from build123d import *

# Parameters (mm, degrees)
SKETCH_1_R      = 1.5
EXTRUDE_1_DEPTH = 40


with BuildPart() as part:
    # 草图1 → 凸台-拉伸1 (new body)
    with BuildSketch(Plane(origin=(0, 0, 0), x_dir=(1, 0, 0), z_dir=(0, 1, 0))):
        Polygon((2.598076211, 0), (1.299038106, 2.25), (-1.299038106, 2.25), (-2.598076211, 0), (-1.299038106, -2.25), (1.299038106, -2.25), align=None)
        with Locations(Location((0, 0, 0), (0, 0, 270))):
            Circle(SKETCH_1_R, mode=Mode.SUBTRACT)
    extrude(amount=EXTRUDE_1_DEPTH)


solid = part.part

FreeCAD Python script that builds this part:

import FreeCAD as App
import Part
import Sketcher

V = App.Vector
Q = App.Units.Quantity

doc = App.newDocument("Part")
body = doc.addObject("PartDesign::Body", "Body")

# Sketch on XZ plane
sketch1 = body.newObject("Sketcher::SketchObject", "Sketch")
sketch1.AttachmentSupport = (doc.getObject("XZ_Plane"), [""])
sketch1.MapMode = "FlatFace"
sketch1.addGeometry([
    Part.LineSegment(V(2.6, 0, 0), V(1.3, -2.2, 0)),  # 0
    Part.LineSegment(V(1.3, -2.2, 0), V(-1.3, -2.2, 0)),  # 1
    Part.LineSegment(V(-1.3, -2.2, 0), V(-2.6, 0, 0)),  # 2
    Part.LineSegment(V(-2.6, 0, 0), V(-1.3, 2.2, 0)),  # 3
    Part.LineSegment(V(-1.3, 2.2, 0), V(1.3, 2.2, 0)),  # 4
    Part.LineSegment(V(1.3, 2.2, 0), V(2.6, 0, 0)),  # 5
    Part.Circle(V(0, 0, 0), V(0, 0, 1), 1.5),  # 6
], False)
sketch1.addConstraint([
    Sketcher.Constraint("Coincident", 0, 2, 1, 1),
    Sketcher.Constraint("Coincident", 1, 2, 2, 1),
    Sketcher.Constraint("Coincident", 2, 2, 3, 1),
    Sketcher.Constraint("Coincident", 3, 2, 4, 1),
    Sketcher.Constraint("Coincident", 4, 2, 5, 1),
    Sketcher.Constraint("Coincident", 5, 2, 0, 1),
    Sketcher.Constraint("Horizontal", 1),
    Sketcher.Constraint("Horizontal", 4),
    Sketcher.Constraint("Coincident", 6, 3, -1, 1),
    Sketcher.Constraint("Symmetric", 0, 2, 3, 2, -1, 1),
    Sketcher.Constraint("Symmetric", 2, 2, 5, 2, -1, 1),
    Sketcher.Constraint("PointOnObject", 2, 2, -1),
    Sketcher.Constraint("Parallel", 2, 5),
    Sketcher.Constraint("Vertical", 1, 2, 3, 2),
    Sketcher.Constraint("Diameter", 6, Q("3 mm")),
    Sketcher.Constraint("Angle", 0, Q("-120 deg")),
    Sketcher.Constraint("DistanceY", 1, 2, 3, 2, Q("4.5 mm")),
    Sketcher.Constraint("DistanceX", 1, 2, 1, 1, Q("2.598076 mm")),
])
pad1 = body.newObject("PartDesign::Pad", "Pad")
pad1.Profile = sketch1
pad1.Length = 40
pad1.Reversed = True

doc.recompute()
